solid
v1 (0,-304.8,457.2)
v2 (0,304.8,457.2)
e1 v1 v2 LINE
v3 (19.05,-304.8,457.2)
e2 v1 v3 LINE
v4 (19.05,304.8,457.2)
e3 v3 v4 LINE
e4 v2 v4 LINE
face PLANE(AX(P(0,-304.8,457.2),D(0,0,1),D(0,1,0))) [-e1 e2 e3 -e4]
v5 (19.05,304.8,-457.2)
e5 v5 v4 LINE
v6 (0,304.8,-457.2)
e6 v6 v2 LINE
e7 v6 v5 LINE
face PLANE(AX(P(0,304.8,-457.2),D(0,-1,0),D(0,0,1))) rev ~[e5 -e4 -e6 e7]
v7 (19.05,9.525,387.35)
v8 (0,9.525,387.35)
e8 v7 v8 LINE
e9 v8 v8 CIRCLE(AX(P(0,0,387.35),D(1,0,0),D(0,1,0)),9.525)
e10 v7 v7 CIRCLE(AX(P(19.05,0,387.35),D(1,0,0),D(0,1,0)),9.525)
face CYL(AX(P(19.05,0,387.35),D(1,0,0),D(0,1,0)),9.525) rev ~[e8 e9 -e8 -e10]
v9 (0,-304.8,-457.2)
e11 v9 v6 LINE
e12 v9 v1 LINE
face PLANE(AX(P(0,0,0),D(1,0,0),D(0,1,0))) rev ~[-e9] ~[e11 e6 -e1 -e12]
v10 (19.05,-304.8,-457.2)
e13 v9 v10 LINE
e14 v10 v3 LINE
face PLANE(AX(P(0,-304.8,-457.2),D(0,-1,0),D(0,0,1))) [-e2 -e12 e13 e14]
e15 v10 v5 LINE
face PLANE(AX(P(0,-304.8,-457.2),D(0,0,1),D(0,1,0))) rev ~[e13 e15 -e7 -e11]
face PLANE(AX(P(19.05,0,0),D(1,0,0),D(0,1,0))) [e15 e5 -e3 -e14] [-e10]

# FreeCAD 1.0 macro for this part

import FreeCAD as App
import Part
import Sketcher
Q = App.Units.Quantity


def add_polygon(sketch, points):
    """Adds a closed chain of lines whose ends are joined by coincident constraints."""
    first, n = sketch.GeometryCount, len(points)
    for a, b in zip(points, points[1:] + points[:1]):
        sketch.addGeometry(Part.LineSegment(App.Vector(*a, 0), App.Vector(*b, 0)), False)
    for i in range(n):
        sketch.addConstraint(Sketcher.Constraint("Coincident", first + i, 2, first + (i + 1) % n, 1))

doc = App.newDocument("Part")
body = doc.addObject("PartDesign::Body", "Body")

# Sketch on YZ plane
sketch1 = doc.addObject("Sketcher::SketchObject", "Sketch")
body.addObject(sketch1)
sketch1.AttachmentSupport = (doc.YZ_Plane, [""])
sketch1.MapMode = "FlatFace"
add_polygon(sketch1, [(-305, 457), (-305, -457), (305, -457), (305, 457)])  # lines 0-3
sketch1.addConstraint(Sketcher.Constraint("Vertical", 0))
sketch1.addConstraint(Sketcher.Constraint("Horizontal", 1))
sketch1.addConstraint(Sketcher.Constraint("Vertical", 2))
sketch1.addConstraint(Sketcher.Constraint("Horizontal", 3))
sketch1.addConstraint(Sketcher.Constraint("Symmetric", 0, 2, 2, 2, -1, 1))
sketch1.addConstraint(Sketcher.Constraint("DistanceX", 1, 1, 1, 2, Q("24 in")))
sketch1.addConstraint(Sketcher.Constraint("DistanceY", 0, 2, 0, 1, Q("36 in")))
pad1 = doc.addObject("PartDesign::Pad", "Pad")
body.addObject(pad1)
pad1.Profile = sketch1
pad1.Length = Q("0.75 in")

# Sketch on YZ plane
sketch2 = doc.addObject("Sketcher::SketchObject", "Sketch001")
body.addObject(sketch2)
sketch2.AttachmentSupport = (doc.YZ_Plane, [""])
sketch2.MapMode = "FlatFace"
sketch2.AttachmentOffset = App.Placement(App.Vector(0, 0, 0.75 * 25.4), App.Rotation())
sketch2.addGeometry(Part.Circle(App.Vector(0, 387, 0), App.Vector(0, 0, 1), 10), False)
sketch2.addConstraint(Sketcher.Constraint("PointOnObject", 0, 3, -2))
sketch2.addConstraint(Sketcher.Constraint("Diameter", 0, Q("0.75 in")))
sketch2.addConstraint(Sketcher.Constraint("DistanceY", -1, 1, 0, 3, Q("15.25 in")))
pocket1 = doc.addObject("PartDesign::Pocket", "Pocket")
body.addObject(pocket1)
pocket1.Profile = sketch2
pocket1.Length = Q("1 in")

doc.recompute()
